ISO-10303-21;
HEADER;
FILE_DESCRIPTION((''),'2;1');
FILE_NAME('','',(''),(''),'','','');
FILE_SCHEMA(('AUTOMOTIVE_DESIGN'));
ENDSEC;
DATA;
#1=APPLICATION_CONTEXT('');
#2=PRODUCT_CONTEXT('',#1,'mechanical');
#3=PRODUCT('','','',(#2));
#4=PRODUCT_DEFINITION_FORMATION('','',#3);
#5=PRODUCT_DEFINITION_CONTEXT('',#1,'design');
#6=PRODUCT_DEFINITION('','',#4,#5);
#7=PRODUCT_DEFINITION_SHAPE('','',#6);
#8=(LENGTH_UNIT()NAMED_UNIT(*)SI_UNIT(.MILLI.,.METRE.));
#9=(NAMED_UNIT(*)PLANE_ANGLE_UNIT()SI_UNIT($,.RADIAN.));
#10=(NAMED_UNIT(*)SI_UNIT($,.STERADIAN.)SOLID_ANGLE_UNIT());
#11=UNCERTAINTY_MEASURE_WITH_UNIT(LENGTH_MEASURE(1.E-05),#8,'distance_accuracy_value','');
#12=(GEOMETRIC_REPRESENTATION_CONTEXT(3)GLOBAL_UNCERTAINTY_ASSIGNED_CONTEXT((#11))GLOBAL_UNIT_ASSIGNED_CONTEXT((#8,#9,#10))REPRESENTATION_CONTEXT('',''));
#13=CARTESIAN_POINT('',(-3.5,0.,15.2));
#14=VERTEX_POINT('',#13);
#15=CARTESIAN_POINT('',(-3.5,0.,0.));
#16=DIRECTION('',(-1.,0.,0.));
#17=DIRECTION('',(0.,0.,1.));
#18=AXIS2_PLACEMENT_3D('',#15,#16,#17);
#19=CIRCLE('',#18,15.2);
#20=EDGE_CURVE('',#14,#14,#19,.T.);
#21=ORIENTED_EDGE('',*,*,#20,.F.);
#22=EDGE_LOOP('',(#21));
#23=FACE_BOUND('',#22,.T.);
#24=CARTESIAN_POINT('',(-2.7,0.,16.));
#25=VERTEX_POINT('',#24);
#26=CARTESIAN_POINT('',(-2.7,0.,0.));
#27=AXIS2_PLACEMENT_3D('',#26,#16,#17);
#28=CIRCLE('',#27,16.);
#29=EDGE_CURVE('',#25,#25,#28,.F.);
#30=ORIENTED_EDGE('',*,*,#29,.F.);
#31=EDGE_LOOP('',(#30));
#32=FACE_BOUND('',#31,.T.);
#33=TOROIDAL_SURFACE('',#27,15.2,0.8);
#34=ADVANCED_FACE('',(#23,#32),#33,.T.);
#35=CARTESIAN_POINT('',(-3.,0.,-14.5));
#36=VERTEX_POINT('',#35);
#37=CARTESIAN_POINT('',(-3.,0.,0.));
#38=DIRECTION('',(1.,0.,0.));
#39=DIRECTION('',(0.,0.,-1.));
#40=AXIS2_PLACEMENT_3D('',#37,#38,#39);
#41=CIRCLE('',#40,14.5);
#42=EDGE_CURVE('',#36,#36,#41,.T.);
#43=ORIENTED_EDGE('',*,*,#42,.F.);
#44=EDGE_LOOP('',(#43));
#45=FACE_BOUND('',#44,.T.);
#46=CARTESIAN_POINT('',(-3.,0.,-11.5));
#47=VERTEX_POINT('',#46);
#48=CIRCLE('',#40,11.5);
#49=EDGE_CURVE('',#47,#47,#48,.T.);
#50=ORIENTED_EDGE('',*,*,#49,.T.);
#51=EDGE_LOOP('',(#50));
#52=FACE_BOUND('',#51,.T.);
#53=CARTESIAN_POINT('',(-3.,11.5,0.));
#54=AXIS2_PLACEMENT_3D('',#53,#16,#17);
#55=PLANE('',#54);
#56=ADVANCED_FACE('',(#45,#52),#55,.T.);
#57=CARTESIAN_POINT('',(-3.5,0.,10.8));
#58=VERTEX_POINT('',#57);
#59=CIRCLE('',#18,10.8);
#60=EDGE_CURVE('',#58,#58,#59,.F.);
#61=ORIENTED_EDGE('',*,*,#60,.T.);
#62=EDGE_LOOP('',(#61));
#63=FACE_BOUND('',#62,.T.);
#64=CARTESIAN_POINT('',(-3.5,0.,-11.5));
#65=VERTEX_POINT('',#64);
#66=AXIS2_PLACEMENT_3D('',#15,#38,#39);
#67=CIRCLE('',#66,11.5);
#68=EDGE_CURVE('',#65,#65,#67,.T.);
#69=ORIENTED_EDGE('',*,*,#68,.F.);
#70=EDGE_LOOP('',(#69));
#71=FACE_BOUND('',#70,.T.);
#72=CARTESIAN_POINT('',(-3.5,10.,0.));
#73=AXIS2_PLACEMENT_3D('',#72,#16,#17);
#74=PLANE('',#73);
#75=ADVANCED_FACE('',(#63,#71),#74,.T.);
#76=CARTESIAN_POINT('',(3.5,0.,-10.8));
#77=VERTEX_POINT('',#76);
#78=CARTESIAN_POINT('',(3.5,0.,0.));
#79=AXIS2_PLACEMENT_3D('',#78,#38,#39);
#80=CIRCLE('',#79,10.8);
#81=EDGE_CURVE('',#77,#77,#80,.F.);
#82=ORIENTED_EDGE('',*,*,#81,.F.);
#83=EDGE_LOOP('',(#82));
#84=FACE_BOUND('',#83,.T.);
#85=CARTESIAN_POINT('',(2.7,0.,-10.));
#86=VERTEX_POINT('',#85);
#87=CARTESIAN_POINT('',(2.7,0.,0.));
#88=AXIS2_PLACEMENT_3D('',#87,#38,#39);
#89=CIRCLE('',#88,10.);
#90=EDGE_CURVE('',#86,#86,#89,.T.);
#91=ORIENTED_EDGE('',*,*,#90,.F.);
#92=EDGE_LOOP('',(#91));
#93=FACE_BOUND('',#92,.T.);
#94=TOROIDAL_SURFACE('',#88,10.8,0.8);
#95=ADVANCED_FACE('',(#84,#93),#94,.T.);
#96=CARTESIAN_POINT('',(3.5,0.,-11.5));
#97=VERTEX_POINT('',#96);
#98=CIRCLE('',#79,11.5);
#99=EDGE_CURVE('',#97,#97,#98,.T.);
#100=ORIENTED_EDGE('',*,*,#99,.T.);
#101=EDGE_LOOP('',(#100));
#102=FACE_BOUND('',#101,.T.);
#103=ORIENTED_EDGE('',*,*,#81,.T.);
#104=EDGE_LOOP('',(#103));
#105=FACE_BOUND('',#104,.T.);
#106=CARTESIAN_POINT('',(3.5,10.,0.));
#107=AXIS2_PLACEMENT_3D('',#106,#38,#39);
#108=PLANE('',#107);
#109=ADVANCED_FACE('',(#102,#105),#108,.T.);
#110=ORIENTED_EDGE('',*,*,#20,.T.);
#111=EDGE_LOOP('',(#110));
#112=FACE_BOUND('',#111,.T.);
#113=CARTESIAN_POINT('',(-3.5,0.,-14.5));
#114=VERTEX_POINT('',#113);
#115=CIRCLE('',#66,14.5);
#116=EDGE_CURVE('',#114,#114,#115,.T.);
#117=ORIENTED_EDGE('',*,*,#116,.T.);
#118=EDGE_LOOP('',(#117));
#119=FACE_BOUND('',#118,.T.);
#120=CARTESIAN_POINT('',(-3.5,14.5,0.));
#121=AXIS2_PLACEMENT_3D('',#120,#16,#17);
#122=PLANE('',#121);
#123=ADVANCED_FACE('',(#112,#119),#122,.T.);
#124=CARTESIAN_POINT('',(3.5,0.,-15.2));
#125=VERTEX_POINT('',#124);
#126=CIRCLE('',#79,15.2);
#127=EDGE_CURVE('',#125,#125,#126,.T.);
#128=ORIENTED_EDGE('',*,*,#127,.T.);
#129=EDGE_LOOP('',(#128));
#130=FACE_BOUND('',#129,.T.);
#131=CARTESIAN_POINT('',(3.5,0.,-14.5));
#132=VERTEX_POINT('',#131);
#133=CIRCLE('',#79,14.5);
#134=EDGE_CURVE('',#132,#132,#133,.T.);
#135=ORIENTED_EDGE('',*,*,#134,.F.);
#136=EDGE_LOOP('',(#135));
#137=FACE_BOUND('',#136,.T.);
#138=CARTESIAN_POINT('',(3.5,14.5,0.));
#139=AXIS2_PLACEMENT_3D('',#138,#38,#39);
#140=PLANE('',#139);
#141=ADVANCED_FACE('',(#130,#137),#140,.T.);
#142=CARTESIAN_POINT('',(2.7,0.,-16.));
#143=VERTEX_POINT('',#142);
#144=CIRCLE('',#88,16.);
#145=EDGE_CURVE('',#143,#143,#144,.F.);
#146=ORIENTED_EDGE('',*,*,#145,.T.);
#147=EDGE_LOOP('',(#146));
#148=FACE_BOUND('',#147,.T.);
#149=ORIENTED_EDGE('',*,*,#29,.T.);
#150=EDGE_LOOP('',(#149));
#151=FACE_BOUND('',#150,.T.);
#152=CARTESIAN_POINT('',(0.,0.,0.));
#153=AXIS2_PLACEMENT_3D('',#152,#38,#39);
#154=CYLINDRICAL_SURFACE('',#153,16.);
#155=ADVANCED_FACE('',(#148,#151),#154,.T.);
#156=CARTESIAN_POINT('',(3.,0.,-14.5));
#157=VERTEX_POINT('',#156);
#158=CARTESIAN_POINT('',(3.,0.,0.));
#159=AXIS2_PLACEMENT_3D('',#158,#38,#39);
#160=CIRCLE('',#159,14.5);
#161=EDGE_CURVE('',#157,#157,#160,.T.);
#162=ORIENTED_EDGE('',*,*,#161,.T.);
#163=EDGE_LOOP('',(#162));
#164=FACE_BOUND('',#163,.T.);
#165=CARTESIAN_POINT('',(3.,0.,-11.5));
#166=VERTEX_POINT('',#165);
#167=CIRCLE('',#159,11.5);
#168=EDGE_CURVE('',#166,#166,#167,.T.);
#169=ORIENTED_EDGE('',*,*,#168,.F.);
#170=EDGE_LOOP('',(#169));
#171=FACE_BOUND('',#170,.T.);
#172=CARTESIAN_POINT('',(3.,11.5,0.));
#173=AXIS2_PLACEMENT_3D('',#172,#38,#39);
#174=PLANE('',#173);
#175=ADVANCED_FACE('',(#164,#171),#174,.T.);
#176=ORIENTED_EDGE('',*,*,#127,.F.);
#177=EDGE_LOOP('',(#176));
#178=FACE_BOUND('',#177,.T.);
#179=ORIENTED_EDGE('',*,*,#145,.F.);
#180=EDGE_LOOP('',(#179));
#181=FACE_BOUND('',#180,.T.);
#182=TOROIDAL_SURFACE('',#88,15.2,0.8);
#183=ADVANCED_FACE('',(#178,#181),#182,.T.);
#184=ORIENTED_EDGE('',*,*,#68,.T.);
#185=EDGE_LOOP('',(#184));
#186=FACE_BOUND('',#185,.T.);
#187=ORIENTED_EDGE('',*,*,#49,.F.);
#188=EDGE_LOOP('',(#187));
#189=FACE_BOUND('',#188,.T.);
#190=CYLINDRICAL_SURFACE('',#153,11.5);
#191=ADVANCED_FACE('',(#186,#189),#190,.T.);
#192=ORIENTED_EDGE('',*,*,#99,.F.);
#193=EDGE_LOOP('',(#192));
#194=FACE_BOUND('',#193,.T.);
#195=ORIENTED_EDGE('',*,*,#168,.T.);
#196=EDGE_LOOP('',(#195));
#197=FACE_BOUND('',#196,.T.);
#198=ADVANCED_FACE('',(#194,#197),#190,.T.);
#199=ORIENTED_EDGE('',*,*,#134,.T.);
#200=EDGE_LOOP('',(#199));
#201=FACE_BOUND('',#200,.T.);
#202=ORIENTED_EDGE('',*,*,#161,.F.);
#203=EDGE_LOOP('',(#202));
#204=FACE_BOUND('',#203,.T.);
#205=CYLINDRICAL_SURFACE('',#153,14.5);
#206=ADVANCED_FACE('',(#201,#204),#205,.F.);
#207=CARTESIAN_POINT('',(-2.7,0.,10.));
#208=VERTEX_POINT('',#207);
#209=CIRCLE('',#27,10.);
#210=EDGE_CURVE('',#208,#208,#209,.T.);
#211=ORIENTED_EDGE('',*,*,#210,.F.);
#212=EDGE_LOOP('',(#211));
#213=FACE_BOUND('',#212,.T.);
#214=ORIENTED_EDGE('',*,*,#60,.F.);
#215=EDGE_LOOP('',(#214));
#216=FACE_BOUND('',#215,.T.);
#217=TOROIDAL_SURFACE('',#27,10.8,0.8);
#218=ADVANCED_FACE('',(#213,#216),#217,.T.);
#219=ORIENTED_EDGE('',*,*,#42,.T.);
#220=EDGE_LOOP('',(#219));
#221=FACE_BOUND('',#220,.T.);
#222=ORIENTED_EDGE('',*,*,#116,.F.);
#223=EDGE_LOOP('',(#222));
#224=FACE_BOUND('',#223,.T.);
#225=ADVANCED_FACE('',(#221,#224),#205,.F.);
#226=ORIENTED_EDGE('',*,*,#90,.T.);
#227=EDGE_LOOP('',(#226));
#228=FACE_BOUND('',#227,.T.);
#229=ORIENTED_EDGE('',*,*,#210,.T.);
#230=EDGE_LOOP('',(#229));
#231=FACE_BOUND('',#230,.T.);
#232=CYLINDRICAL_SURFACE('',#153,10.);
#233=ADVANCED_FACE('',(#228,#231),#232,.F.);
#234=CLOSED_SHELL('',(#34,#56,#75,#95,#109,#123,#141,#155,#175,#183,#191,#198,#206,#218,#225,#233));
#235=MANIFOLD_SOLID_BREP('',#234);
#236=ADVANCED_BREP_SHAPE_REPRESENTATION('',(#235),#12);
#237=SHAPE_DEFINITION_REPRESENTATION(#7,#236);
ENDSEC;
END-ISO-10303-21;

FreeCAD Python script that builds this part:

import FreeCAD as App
import Part
import Sketcher

V = App.Vector


def edges_at(feature, points):
    """Names of the edges that pass closest to the given points."""
    edges = feature.Shape.Edges
    near = lambda p: min(range(len(edges)), key=lambda i: edges[i].distToShape(Part.Vertex(*p))[0])
    return sorted({f"Edge{near(p) + 1}" for p in points})


def add_polygon(sketch, points):
    """Adds a closed chain of lines whose ends are joined by coincident constraints."""
    first, n = sketch.GeometryCount, len(points)
    for a, b in zip(points, points[1:] + points[:1]):
        sketch.addGeometry(Part.LineSegment(App.Vector(*a, 0), App.Vector(*b, 0)), False)
    for i in range(n):
        sketch.addConstraint(Sketcher.Constraint("Coincident", first + i, 2, first + (i + 1) % n, 1))

doc = App.newDocument("Part")
body = doc.addObject("PartDesign::Body", "Body")

sketch1 = doc.addObject("Sketcher::SketchObject", "Sketch")
body.addObject(sketch1)
sketch1.AttachmentSupport = (doc.XY_Plane, [""])
sketch1.MapMode = "FlatFace"
add_polygon(sketch1, [(-3.5, 10), (3.5, 10), (3.5, 11.5), (3, 11.5), (3, 14.5), (3.5, 14.5), (3.5, 16), (-3.5, 16), (-3.5, 14.5), (-3, 14.5), (-3, 11.5), (-3.5, 11.5)])
sketch1.addConstraint(Sketcher.Constraint("Horizontal", 0))
sketch1.addConstraint(Sketcher.Constraint("Vertical", 1))
sketch1.addConstraint(Sketcher.Constraint("Horizontal", 2))
sketch1.addConstraint(Sketcher.Constraint("Vertical", 3))
sketch1.addConstraint(Sketcher.Constraint("Horizontal", 4))
sketch1.addConstraint(Sketcher.Constraint("Vertical", 5))
sketch1.addConstraint(Sketcher.Constraint("Horizontal", 6))
sketch1.addConstraint(Sketcher.Constraint("Vertical", 7))
sketch1.addConstraint(Sketcher.Constraint("Horizontal", 8))
sketch1.addConstraint(Sketcher.Constraint("Vertical", 9))
sketch1.addConstraint(Sketcher.Constraint("Horizontal", 10))
sketch1.addConstraint(Sketcher.Constraint("Vertical", 11))
sketch1.addConstraint(Sketcher.Constraint("Symmetric", 4, 2, 7, 2, -2))
sketch1.addConstraint(Sketcher.Constraint("Symmetric", 2, 2, 9, 2, -2))
sketch1.addConstraint(Sketcher.Constraint("Vertical", 1, 2, 4, 2))
sketch1.addConstraint(Sketcher.Constraint("Vertical", 7, 2, 10, 2))
sketch1.addConstraint(Sketcher.Constraint("Equal", 1, 5))
sketch1.addConstraint(Sketcher.Constraint("DistanceX", 0, 1, 0, 2, 7.0))
sketch1.addConstraint(Sketcher.Constraint("DistanceY", 3, 1, 3, 2, 3.0))
sketch1.addConstraint(Sketcher.Constraint("DistanceX", 2, 2, 2, 1, 0.5))
sketch1.addConstraint(Sketcher.Constraint("DistanceY", 1, 1, 1, 2, 1.5))
sketch1.addConstraint(Sketcher.Constraint("DistanceY", -1, 1, 0, 2, 10.0))
revolution = doc.addObject("PartDesign::Revolution", "Revolution")
body.addObject(revolution)
revolution.Profile = sketch1
revolution.ReferenceAxis = (sketch1, ["H_Axis"])
revolution.Angle = 360
doc.recompute()

fillet = doc.addObject("PartDesign::Fillet", "Fillet")
body.addObject(fillet)
fillet.Base = (revolution, edges_at(revolution, [
    (-3.5, 0, 16),
    (3.5, 0, 16),
    (3.5, 0, 10),
    (-3.5, 0, 10),
]))
fillet.Radius = 0.8

doc.recompute()
